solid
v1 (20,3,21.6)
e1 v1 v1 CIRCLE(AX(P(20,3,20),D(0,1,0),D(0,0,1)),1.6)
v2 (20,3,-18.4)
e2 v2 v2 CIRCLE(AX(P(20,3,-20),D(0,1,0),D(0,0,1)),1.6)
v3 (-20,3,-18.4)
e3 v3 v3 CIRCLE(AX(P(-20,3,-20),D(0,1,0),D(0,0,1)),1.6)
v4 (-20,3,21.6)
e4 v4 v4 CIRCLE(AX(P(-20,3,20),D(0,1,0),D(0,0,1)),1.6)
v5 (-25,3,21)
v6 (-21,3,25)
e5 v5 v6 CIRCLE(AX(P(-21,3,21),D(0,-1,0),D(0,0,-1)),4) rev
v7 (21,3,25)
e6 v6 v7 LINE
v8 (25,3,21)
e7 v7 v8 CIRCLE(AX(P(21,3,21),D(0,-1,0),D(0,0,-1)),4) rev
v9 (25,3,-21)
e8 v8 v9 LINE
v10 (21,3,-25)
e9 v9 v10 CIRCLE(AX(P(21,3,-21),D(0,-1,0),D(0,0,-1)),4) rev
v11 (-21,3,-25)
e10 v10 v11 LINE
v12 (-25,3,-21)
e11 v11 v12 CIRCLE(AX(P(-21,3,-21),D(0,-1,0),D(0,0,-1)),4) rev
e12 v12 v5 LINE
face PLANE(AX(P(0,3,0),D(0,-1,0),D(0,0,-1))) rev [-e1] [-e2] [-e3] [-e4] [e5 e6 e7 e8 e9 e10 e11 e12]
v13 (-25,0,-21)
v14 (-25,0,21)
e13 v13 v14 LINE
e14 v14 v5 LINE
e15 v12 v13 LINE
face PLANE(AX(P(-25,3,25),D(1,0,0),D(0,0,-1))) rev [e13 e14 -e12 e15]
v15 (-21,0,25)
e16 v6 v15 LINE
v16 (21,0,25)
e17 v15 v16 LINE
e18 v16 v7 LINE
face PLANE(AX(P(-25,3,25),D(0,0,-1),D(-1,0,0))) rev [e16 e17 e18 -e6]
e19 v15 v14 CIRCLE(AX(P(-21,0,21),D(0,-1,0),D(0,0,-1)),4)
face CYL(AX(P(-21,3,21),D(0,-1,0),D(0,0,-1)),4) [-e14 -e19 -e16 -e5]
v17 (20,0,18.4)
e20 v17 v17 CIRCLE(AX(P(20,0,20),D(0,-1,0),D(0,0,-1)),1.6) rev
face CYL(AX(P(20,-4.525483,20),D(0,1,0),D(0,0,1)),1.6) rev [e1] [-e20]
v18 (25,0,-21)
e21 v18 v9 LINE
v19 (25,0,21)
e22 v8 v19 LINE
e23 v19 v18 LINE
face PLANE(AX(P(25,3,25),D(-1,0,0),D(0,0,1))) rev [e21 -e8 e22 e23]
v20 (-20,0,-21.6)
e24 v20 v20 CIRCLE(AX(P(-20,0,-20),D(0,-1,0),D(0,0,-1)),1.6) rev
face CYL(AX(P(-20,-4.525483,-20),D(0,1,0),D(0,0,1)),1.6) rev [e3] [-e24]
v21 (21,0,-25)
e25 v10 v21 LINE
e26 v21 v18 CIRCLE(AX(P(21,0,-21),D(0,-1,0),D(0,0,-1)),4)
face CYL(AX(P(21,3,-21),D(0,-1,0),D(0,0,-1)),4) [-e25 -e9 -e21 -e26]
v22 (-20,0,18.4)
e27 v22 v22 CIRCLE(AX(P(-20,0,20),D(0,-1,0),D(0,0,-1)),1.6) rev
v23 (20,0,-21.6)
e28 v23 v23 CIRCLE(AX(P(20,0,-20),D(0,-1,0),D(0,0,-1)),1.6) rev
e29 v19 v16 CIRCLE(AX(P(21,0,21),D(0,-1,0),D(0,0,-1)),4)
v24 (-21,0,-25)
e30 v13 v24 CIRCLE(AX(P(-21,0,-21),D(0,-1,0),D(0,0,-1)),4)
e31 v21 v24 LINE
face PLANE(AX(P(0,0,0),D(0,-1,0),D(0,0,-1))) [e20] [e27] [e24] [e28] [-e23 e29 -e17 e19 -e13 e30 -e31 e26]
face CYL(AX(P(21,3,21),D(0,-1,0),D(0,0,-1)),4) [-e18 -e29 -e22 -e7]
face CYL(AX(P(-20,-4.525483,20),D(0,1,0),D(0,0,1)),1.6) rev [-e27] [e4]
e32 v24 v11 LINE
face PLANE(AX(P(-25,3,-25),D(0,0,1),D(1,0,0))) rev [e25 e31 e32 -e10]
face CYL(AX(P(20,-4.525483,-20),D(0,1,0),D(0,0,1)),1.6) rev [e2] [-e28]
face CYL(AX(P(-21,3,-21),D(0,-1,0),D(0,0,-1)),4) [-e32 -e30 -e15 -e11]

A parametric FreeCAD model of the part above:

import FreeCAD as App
import Part
import Sketcher

V = App.Vector
Q = App.Units.Quantity


def edges_at(feature, points):
    """Names of the edges that pass closest to the given points."""
    edges = feature.Shape.Edges
    near = lambda p: min(range(len(edges)), key=lambda i: edges[i].distToShape(Part.Vertex(*p))[0])
    return sorted({f"Edge{near(p) + 1}" for p in points})


def add_polygon(sketch, points):
    """Adds a closed chain of lines whose ends are joined by coincident constraints."""
    first, n = sketch.GeometryCount, len(points)
    for a, b in zip(points, points[1:] + points[:1]):
        sketch.addGeometry(Part.LineSegment(App.Vector(*a, 0), App.Vector(*b, 0)), False)
    for i in range(n):
        sketch.addConstraint(Sketcher.Constraint("Coincident", first + i, 2, first + (i + 1) % n, 1))

doc = App.newDocument("Part")
body = doc.addObject("PartDesign::Body", "Body")

# Sketch on XZ plane
sketch1 = body.newObject("Sketcher::SketchObject", "Sketch")
sketch1.AttachmentSupport = (doc.getObject("XZ_Plane"), [""])
sketch1.MapMode = "FlatFace"
add_polygon(sketch1, [(-25, -25), (-25, 25), (25, 25), (25, -25)])  # lines 0-3
sketch1.addConstraint(Sketcher.Constraint("Vertical", 0))
sketch1.addConstraint(Sketcher.Constraint("Horizontal", 1))
sketch1.addConstraint(Sketcher.Constraint("Vertical", 2))
sketch1.addConstraint(Sketcher.Constraint("Horizontal", 3))
sketch1.addConstraint(Sketcher.Constraint("Symmetric", 0, 2, 2, 2, -1, 1))
sketch1.addConstraint(Sketcher.Constraint("Equal", 3, 0))
sketch1.addConstraint(Sketcher.Constraint("DistanceX", 1, 1, 1, 2, Q("50 mm")))
pad1 = body.newObject("PartDesign::Pad", "Pad")
pad1.Profile = sketch1
pad1.Length = 3
pad1.Reversed = True

# Sketch on XZ plane
sketch2 = body.newObject("Sketcher::SketchObject", "Sketch001")
sketch2.AttachmentSupport = (doc.getObject("XZ_Plane"), [""])
sketch2.MapMode = "FlatFace"
sketch2.AttachmentOffset = App.Placement(V(0, 0, -3), App.Rotation())
sketch2.addGeometry(Part.Circle(V(-20, -20, 0), V(0, 0, 1), 1.6), False)
sketch2.addGeometry(Part.Circle(V(20, -20, 0), V(0, 0, 1), 1.6), False)
sketch2.addGeometry(Part.Circle(V(20, 20, 0), V(0, 0, 1), 1.6), False)
sketch2.addGeometry(Part.Circle(V(-20, 20, 0), V(0, 0, 1), 1.6), False)
sketch2.addConstraint(Sketcher.Constraint("Equal", 0, 1))
sketch2.addConstraint(Sketcher.Constraint("Equal", 1, 2))
sketch2.addConstraint(Sketcher.Constraint("Equal", 2, 3))
sketch2.addConstraint(Sketcher.Constraint("Symmetric", 0, 3, 2, 3, -1, 1))
sketch2.addConstraint(Sketcher.Constraint("Symmetric", 1, 3, 3, 3, -1, 1))
sketch2.addConstraint(Sketcher.Constraint("Symmetric", 0, 3, 1, 3, -2))
sketch2.addConstraint(Sketcher.Constraint("Diameter", 0, Q("3.2 mm")))
sketch2.addConstraint(Sketcher.Constraint("DistanceX", 0, 3, -1, 1, Q("20 mm")))
sketch2.addConstraint(Sketcher.Constraint("DistanceY", 0, 3, -1, 1, Q("20 mm")))
pocket1 = body.newObject("PartDesign::Pocket", "Pocket")
pocket1.Profile = sketch2
pocket1.Length = 3
pocket1.Reversed = True
doc.recompute()

fillet = body.newObject("PartDesign::Fillet", "Fillet")
fillet.Base = (pocket1, edges_at(pocket1, [
    (25, 1.5, 25),
    (-25, 1.5, 25),
    (-25, 1.5, -25),
    (25, 1.5, -25),
]))
fillet.Radius = 4

doc.recompute()
